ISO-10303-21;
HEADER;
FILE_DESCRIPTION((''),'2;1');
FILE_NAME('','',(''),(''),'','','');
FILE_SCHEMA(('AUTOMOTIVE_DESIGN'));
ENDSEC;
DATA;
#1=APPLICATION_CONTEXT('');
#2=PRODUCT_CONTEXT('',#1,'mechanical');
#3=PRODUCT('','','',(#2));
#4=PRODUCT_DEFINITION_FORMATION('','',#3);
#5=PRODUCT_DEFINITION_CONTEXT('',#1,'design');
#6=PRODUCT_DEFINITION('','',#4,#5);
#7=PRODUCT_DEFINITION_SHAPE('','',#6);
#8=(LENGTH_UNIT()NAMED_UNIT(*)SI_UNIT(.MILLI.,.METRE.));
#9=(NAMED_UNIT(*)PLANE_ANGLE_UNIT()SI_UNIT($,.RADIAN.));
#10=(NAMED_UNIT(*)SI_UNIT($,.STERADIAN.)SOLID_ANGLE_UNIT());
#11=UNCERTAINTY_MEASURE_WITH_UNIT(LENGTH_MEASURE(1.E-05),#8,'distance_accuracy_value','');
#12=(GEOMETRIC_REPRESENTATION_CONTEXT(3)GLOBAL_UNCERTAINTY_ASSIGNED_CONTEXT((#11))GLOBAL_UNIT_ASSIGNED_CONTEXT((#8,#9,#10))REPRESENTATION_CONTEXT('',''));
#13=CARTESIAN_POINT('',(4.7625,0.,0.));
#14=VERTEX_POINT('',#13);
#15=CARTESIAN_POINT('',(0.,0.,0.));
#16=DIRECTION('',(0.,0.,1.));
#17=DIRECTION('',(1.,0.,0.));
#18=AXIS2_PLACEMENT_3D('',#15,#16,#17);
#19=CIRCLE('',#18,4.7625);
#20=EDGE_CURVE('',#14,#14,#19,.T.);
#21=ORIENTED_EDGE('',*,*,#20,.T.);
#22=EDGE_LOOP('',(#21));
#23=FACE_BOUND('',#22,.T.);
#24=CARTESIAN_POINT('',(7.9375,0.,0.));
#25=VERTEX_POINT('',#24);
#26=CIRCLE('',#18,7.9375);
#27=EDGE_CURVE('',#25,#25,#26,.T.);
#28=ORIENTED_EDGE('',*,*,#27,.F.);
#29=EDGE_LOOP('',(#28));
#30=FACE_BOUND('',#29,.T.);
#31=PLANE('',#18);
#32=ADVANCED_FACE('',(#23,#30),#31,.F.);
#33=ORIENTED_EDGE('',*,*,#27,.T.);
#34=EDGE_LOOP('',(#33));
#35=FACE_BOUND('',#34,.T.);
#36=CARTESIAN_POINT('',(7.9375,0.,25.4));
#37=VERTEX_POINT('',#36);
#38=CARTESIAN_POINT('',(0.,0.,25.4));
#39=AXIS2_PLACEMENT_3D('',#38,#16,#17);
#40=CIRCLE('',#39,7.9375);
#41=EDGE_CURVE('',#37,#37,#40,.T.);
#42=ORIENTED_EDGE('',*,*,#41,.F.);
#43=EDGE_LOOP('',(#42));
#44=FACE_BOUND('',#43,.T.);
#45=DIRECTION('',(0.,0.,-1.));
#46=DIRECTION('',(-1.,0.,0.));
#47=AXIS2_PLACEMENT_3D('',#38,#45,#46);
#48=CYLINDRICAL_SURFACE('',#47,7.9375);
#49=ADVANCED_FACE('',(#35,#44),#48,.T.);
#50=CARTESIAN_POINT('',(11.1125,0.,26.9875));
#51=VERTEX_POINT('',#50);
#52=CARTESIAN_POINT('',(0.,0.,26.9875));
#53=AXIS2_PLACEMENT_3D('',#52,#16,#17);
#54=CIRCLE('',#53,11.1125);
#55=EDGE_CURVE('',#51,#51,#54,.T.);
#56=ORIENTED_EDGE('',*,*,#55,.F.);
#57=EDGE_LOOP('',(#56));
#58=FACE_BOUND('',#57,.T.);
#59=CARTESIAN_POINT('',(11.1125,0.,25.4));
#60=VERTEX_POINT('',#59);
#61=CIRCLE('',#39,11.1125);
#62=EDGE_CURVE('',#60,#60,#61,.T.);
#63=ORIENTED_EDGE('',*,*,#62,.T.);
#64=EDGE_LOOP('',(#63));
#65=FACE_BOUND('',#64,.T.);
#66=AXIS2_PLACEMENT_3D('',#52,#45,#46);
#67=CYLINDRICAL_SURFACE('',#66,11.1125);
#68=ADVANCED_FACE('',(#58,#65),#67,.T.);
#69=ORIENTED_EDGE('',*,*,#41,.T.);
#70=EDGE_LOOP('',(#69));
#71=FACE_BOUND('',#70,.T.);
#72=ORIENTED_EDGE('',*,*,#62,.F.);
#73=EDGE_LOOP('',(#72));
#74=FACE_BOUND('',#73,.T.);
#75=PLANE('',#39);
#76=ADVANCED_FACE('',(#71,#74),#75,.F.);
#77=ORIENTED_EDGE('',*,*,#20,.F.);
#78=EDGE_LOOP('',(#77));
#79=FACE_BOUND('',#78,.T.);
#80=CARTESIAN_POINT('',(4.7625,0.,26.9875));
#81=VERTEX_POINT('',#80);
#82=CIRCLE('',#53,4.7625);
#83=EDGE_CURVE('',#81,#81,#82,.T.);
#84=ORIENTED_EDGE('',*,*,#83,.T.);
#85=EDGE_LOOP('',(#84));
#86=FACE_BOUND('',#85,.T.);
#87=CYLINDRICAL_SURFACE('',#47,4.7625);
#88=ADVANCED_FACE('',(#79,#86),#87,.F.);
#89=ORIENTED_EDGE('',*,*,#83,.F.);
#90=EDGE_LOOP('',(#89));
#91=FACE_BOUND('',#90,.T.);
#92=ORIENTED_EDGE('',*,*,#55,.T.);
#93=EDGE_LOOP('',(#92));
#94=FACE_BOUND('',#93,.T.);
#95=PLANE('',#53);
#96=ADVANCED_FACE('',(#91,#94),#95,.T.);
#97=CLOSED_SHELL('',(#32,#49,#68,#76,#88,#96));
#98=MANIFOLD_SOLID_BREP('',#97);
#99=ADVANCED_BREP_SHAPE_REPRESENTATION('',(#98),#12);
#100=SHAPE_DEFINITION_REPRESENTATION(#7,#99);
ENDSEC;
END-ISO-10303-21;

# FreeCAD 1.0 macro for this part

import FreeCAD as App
import Part
import Sketcher
from FreeCAD import Vector
Q = App.Units.Quantity

doc = App.newDocument("Part")
params = doc.addObject("Spreadsheet::Sheet", "Params")
for row, (alias, value) in enumerate([
    ("sketch1_diameter", "0.625 in"),
    ("sketch1_diameter2", "0.375 in"),
    ("pad1_length", "1 in"),
    ("sketch2_diameter", "0.875 in"),
    ("sketch2_diameter2", "0.375 in"),
    ("pad2_length", "0.0625 in"),
], start=1):
    params.set(f"A{row}", alias)
    params.set(f"B{row}", "=" + value)
    params.setAlias(f"B{row}", alias)

body = doc.addObject("PartDesign::Body", "Body")

# Sketch on XY plane
sketch1 = body.newObject("Sketcher::SketchObject", "Sketch")
sketch1.AttachmentSupport = (doc.getObject("XY_Plane"), [""])
sketch1.MapMode = "FlatFace"
sketch1.addGeometry([
    Part.Circle(Vector(0, 0, 0), Vector(0, 0, 1), 7.9),
    Part.Circle(Vector(0, 0, 0), Vector(0, 0, 1), 4.8),
], False)
sketch1.addConstraint([
    Sketcher.Constraint("Coincident", 0, 3, -1, 1),
    Sketcher.Constraint("Coincident", 1, 3, -1, 1),
    Sketcher.Constraint("Diameter", 0, Q("0.625 in")),
    Sketcher.Constraint("Diameter", 1, Q("0.375 in")),
])
sketch1.setExpression("Constraints[2]", "Params.sketch1_diameter")
sketch1.setExpression("Constraints[3]", "Params.sketch1_diameter2")
pad1 = body.newObject("PartDesign::Pad", "Pad")
pad1.Profile = sketch1
pad1.setExpression("Length", "Params.pad1_length")

# Sketch on XY plane
sketch2 = body.newObject("Sketcher::SketchObject", "Sketch001")
sketch2.AttachmentSupport = (doc.getObject("XY_Plane"), [""])
sketch2.MapMode = "FlatFace"
sketch2.AttachmentOffset = App.Placement(Vector(0, 0, 1 * 25.4), App.Rotation())
sketch2.addGeometry([
    Part.Circle(Vector(0, 0, 0), Vector(0, 0, 1), 11.1),
    Part.Circle(Vector(0, 0, 0), Vector(0, 0, 1), 4.8),
], False)
sketch2.addConstraint([
    Sketcher.Constraint("Coincident", 0, 3, -1, 1),
    Sketcher.Constraint("Coincident", 1, 3, -1, 1),
    Sketcher.Constraint("Diameter", 0, Q("0.875 in")),
    Sketcher.Constraint("Diameter", 1, Q("0.375 in")),
])
sketch2.setExpression("Constraints[2]", "Params.sketch2_diameter")
sketch2.setExpression("Constraints[3]", "Params.sketch2_diameter2")
pad2 = body.newObject("PartDesign::Pad", "Pad001")
pad2.Profile = sketch2
pad2.setExpression("Length", "Params.pad2_length")

doc.recompute()
